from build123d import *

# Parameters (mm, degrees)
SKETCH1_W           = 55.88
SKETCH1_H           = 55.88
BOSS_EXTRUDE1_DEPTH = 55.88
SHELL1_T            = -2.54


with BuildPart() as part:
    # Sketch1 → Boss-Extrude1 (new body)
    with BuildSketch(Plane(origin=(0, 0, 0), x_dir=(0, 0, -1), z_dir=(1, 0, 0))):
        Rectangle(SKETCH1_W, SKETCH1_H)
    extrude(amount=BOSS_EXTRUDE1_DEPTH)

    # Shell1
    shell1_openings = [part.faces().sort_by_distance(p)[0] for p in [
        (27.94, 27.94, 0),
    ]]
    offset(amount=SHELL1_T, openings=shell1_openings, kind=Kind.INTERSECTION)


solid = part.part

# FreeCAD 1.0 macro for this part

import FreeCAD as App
import Part
import Sketcher
from FreeCAD import Vector
Q = App.Units.Quantity


def faces_at(feature, points):
    """Names of the faces that lie closest to the given points."""
    faces = feature.Shape.Faces
    near = lambda p: min(range(len(faces)), key=lambda i: faces[i].distToShape(Part.Vertex(*p))[0])
    return sorted({f"Face{near(p) + 1}" for p in points})

doc = App.newDocument("Part")
params = doc.addObject("Spreadsheet::Sheet", "Params")
for row, (alias, value) in enumerate([
    ("sketch1_width", "2.2 in"),
    ("pad1_length", "2.2 in"),
    ("thickness_wall", "0.1 in"),
], start=1):
    params.set(f"A{row}", alias)
    params.set(f"B{row}", "=" + value)
    params.setAlias(f"B{row}", alias)

body = doc.addObject("PartDesign::Body", "Body")

# Sketch on YZ plane
sketch1 = doc.addObject("Sketcher::SketchObject", "Sketch")
body.addObject(sketch1)
sketch1.AttachmentSupport = (doc.YZ_Plane, [""])
sketch1.MapMode = "FlatFace"
sketch1.addGeometry([
    Part.LineSegment(Vector(28, 28, 0), Vector(-28, 28, 0)),
    Part.LineSegment(Vector(-28, 28, 0), Vector(-28, -28, 0)),
    Part.LineSegment(Vector(-28, -28, 0), Vector(28, -28, 0)),
    Part.LineSegment(Vector(28, -28, 0), Vector(28, 28, 0)),
], False)
sketch1.addConstraint([
    Sketcher.Constraint("Coincident", 0, 2, 1, 1),
    Sketcher.Constraint("Coincident", 1, 2, 2, 1),
    Sketcher.Constraint("Coincident", 2, 2, 3, 1),
    Sketcher.Constraint("Coincident", 3, 2, 0, 1),
    Sketcher.Constraint("Horizontal", 0),
    Sketcher.Constraint("Vertical", 1),
    Sketcher.Constraint("Horizontal", 2),
    Sketcher.Constraint("Vertical", 3),
    Sketcher.Constraint("Symmetric", 0, 2, 2, 2, -1, 1),
    Sketcher.Constraint("Equal", 2, 1),
    Sketcher.Constraint("DistanceX", 0, 2, 0, 1, Q("2.2 in")),
])
sketch1.setExpression("Constraints[10]", "Params.sketch1_width")
pad1 = doc.addObject("PartDesign::Pad", "Pad")
body.addObject(pad1)
pad1.Profile = sketch1
pad1.setExpression("Length", "Params.pad1_length")
doc.recompute()

thickness = doc.addObject("PartDesign::Thickness", "Thickness")
body.addObject(thickness)
thickness.Base = (pad1, faces_at(pad1, [(27.94, 27.94, 0)]))
thickness.setExpression("Value", "Params.thickness_wall")
thickness.Reversed = True
thickness.Join = "Intersection"

doc.recompute()
